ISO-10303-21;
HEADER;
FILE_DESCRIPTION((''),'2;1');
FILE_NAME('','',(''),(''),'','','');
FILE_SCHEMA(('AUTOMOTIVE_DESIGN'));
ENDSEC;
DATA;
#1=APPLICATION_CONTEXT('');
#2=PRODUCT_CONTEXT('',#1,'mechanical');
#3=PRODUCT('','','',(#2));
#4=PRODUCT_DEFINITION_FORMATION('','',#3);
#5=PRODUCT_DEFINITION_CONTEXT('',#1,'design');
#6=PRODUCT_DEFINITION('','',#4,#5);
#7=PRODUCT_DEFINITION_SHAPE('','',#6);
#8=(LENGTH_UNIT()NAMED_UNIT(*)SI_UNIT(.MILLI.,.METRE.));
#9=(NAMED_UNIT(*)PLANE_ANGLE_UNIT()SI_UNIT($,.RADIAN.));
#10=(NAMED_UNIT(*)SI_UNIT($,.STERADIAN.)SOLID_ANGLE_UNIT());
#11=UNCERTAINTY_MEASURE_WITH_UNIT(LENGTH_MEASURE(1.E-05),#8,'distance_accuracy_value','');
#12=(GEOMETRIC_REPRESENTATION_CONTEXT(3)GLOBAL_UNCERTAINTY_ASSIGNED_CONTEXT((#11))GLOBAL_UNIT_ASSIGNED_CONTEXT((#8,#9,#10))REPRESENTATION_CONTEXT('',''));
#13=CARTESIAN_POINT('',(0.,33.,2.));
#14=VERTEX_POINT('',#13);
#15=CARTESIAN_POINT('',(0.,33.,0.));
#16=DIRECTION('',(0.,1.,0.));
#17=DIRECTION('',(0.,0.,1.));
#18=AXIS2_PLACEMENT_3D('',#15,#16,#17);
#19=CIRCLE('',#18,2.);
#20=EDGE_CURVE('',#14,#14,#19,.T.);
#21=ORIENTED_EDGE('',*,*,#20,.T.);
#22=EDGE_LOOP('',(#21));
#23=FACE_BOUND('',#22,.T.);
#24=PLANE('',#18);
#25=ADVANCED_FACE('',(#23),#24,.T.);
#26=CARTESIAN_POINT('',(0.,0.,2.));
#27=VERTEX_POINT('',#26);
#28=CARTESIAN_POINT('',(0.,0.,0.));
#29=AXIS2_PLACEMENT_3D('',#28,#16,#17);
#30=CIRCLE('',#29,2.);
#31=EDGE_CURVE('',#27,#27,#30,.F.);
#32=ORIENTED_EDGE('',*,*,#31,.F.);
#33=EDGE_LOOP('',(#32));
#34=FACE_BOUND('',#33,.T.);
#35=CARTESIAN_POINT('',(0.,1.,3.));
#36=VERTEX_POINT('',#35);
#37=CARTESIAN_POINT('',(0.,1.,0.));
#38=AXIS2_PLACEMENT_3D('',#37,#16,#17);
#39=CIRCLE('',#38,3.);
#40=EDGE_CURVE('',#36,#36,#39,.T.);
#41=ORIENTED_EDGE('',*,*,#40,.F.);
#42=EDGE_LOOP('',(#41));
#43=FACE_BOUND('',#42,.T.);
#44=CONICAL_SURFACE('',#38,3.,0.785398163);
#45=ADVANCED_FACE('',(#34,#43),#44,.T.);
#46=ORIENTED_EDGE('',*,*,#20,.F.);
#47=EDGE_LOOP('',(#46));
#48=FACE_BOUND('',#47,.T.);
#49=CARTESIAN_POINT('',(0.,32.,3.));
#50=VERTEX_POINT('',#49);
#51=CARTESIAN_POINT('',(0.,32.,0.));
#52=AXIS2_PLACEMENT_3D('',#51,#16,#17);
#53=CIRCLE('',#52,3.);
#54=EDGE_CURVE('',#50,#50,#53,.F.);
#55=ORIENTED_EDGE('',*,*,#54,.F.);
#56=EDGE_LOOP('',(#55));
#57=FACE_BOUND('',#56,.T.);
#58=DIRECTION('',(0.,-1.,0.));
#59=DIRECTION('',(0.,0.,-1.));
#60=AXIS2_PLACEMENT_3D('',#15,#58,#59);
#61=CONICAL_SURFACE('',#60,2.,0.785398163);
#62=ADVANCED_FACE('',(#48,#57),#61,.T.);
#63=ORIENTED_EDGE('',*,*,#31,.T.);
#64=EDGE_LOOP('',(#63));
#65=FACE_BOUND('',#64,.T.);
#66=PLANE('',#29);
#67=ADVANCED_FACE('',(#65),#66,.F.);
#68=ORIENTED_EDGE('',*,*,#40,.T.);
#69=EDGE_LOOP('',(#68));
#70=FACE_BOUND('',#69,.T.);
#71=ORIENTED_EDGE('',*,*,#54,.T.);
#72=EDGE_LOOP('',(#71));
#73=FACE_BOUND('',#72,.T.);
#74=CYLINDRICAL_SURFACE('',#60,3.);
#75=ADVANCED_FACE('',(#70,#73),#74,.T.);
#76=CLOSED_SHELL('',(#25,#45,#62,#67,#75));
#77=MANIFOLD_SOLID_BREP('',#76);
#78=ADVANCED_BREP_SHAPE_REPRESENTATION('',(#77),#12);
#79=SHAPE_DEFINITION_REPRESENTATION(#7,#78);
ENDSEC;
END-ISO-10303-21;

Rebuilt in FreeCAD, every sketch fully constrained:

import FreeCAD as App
import Part
import Sketcher

V = App.Vector


def edges_at(feature, points):
    """Names of the edges that pass closest to the given points."""
    edges = feature.Shape.Edges
    near = lambda p: min(range(len(edges)), key=lambda i: edges[i].distToShape(Part.Vertex(*p))[0])
    return sorted({f"Edge{near(p) + 1}" for p in points})

doc = App.newDocument("Part")
body = doc.addObject("PartDesign::Body", "Body")

sketch1 = body.newObject("Sketcher::SketchObject", "Sketch")
sketch1.AttachmentSupport = (doc.getObject("XZ_Plane"), [""])
sketch1.MapMode = "FlatFace"
sketch1.addGeometry(Part.Circle(V(0, 0, 0), V(0, 0, 1), 3), False)
sketch1.addConstraint([
    Sketcher.Constraint("Coincident", 0, 3, -1, 1),
    Sketcher.Constraint("Diameter", 0, 6.0),
])
pad1 = body.newObject("PartDesign::Pad", "Pad")
pad1.Profile = sketch1
pad1.Length = 33
pad1.Reversed = True
doc.recompute()

chamfer = body.newObject("PartDesign::Chamfer", "Chamfer")
chamfer.Base = (pad1, edges_at(pad1, [(-3, 0, 0), (-3, 33, 0)]))
chamfer.Size = 1

doc.recompute()
